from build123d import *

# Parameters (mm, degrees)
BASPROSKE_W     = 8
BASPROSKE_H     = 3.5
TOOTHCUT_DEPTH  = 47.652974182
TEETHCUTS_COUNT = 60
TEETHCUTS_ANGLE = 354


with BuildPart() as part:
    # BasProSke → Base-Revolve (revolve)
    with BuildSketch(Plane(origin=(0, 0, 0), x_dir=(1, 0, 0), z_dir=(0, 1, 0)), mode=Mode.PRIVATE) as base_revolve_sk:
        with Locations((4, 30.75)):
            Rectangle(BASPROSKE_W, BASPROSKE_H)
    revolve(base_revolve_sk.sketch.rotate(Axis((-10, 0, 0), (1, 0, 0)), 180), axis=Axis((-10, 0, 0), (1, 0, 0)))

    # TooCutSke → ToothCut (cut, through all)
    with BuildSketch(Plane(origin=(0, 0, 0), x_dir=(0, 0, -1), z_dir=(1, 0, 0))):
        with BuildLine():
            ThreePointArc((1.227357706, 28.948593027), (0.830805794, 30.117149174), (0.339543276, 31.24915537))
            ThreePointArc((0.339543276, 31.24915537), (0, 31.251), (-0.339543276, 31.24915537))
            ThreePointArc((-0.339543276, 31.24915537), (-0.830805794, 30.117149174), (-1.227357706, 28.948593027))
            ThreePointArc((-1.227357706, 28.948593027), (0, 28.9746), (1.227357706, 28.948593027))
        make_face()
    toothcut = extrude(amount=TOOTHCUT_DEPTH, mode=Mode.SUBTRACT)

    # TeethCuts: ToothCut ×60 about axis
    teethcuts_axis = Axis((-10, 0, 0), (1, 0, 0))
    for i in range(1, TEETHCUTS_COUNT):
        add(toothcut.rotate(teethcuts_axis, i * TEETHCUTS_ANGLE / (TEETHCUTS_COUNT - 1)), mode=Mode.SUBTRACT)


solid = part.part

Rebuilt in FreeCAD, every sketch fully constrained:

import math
import FreeCAD as App
import Part
import Sketcher

doc = App.newDocument("Part")
body = doc.addObject("PartDesign::Body", "Body")

# Sketch on XZ plane
sketch1 = body.newObject("Sketcher::SketchObject", "Sketch")
sketch1.AttachmentSupport = (doc.getObject("XZ_Plane"), [""])
sketch1.MapMode = "FlatFace"
sketch1.addGeometry([
    Part.LineSegment(App.Vector(0, -32.5, 0), App.Vector(0, -29, 0)),
    Part.LineSegment(App.Vector(0, -29, 0), App.Vector(8, -29, 0)),
    Part.LineSegment(App.Vector(8, -29, 0), App.Vector(8, -32.5, 0)),
    Part.LineSegment(App.Vector(8, -32.5, 0), App.Vector(0, -32.5, 0)),
], False)
sketch1.addConstraint([
    Sketcher.Constraint("Coincident", 0, 2, 1, 1),
    Sketcher.Constraint("Coincident", 1, 2, 2, 1),
    Sketcher.Constraint("Coincident", 2, 2, 3, 1),
    Sketcher.Constraint("Coincident", 3, 2, 0, 1),
    Sketcher.Constraint("Vertical", 0),
    Sketcher.Constraint("Horizontal", 1),
    Sketcher.Constraint("Vertical", 2),
    Sketcher.Constraint("Horizontal", 3),
    Sketcher.Constraint("PointOnObject", 0, 2, -2),
    Sketcher.Constraint("DistanceX", 1, 1, 1, 2, 8.0),
    Sketcher.Constraint("DistanceY", 0, 1, 0, 2, 3.5),
    Sketcher.Constraint("DistanceY", 0, 2, -1, 1, 29.0),
])
revolution = body.newObject("PartDesign::Revolution", "Revolution")
revolution.Profile = sketch1
revolution.ReferenceAxis = (sketch1, ["H_Axis"])
revolution.Angle = 360

# Sketch on YZ plane
sketch2 = body.newObject("Sketcher::SketchObject", "Sketch001")
sketch2.AttachmentSupport = (doc.getObject("YZ_Plane"), [""])
sketch2.MapMode = "FlatFace"
sketch2.addGeometry([
    Part.ArcOfCircle(Part.Circle(App.Vector(24.7, 13.2, 0), App.Vector(0, 0, 1), 15), math.radians(-73.61), math.radians(-64.18)),
    Part.ArcOfCircle(Part.Circle(App.Vector(0, 0, 0), App.Vector(0, 0, 1), 31.3), math.radians(-0.62), math.radians(0.62)),
    Part.ArcOfCircle(Part.Circle(App.Vector(24.7, -13.2, 0), App.Vector(0, 0, 1), 15), math.radians(64.18), math.radians(73.61)),
    Part.ArcOfCircle(Part.Circle(App.Vector(0, 0, 0), App.Vector(0, 0, 1), 29), math.radians(-2.43), math.radians(2.43)),
], False)
sketch2.addConstraint([
    Sketcher.Constraint("Coincident", 0, 2, 1, 1),
    Sketcher.Constraint("Coincident", 1, 2, 2, 1),
    Sketcher.Constraint("Coincident", 2, 2, 3, 2),
    Sketcher.Constraint("Coincident", 3, 1, 0, 1),
    Sketcher.Constraint("Coincident", 1, 3, -1, 1),
    Sketcher.Constraint("Coincident", 3, 3, -1, 1),
    Sketcher.Constraint("Equal", 0, 2),
    Sketcher.Constraint("Symmetric", 0, 3, 2, 3, -1),
    Sketcher.Constraint("Radius", 0, 15.0),
    Sketcher.Constraint("Radius", 3, 28.9746),
    Sketcher.Constraint("Radius", 1, 31.250993),
    Sketcher.Constraint("DistanceY", 0, 2, 2, 2, 1.566901),
    Sketcher.Constraint("DistanceX", -1, 1, 0, 3, 24.716661),
])
pocket1 = body.newObject("PartDesign::Pocket", "Pocket")
pocket1.Profile = sketch2
pocket1.Type = "ThroughAll"
pocket1.Reversed = True
doc.recompute()

polarpattern = body.newObject("PartDesign::PolarPattern", "PolarPattern")
polarpattern.Originals = [pocket1]
polarpattern.Axis = (doc.getObject("X_Axis"), [""])
polarpattern.Angle = 360
polarpattern.Occurrences = 60
body.Tip = polarpattern

doc.recompute()
